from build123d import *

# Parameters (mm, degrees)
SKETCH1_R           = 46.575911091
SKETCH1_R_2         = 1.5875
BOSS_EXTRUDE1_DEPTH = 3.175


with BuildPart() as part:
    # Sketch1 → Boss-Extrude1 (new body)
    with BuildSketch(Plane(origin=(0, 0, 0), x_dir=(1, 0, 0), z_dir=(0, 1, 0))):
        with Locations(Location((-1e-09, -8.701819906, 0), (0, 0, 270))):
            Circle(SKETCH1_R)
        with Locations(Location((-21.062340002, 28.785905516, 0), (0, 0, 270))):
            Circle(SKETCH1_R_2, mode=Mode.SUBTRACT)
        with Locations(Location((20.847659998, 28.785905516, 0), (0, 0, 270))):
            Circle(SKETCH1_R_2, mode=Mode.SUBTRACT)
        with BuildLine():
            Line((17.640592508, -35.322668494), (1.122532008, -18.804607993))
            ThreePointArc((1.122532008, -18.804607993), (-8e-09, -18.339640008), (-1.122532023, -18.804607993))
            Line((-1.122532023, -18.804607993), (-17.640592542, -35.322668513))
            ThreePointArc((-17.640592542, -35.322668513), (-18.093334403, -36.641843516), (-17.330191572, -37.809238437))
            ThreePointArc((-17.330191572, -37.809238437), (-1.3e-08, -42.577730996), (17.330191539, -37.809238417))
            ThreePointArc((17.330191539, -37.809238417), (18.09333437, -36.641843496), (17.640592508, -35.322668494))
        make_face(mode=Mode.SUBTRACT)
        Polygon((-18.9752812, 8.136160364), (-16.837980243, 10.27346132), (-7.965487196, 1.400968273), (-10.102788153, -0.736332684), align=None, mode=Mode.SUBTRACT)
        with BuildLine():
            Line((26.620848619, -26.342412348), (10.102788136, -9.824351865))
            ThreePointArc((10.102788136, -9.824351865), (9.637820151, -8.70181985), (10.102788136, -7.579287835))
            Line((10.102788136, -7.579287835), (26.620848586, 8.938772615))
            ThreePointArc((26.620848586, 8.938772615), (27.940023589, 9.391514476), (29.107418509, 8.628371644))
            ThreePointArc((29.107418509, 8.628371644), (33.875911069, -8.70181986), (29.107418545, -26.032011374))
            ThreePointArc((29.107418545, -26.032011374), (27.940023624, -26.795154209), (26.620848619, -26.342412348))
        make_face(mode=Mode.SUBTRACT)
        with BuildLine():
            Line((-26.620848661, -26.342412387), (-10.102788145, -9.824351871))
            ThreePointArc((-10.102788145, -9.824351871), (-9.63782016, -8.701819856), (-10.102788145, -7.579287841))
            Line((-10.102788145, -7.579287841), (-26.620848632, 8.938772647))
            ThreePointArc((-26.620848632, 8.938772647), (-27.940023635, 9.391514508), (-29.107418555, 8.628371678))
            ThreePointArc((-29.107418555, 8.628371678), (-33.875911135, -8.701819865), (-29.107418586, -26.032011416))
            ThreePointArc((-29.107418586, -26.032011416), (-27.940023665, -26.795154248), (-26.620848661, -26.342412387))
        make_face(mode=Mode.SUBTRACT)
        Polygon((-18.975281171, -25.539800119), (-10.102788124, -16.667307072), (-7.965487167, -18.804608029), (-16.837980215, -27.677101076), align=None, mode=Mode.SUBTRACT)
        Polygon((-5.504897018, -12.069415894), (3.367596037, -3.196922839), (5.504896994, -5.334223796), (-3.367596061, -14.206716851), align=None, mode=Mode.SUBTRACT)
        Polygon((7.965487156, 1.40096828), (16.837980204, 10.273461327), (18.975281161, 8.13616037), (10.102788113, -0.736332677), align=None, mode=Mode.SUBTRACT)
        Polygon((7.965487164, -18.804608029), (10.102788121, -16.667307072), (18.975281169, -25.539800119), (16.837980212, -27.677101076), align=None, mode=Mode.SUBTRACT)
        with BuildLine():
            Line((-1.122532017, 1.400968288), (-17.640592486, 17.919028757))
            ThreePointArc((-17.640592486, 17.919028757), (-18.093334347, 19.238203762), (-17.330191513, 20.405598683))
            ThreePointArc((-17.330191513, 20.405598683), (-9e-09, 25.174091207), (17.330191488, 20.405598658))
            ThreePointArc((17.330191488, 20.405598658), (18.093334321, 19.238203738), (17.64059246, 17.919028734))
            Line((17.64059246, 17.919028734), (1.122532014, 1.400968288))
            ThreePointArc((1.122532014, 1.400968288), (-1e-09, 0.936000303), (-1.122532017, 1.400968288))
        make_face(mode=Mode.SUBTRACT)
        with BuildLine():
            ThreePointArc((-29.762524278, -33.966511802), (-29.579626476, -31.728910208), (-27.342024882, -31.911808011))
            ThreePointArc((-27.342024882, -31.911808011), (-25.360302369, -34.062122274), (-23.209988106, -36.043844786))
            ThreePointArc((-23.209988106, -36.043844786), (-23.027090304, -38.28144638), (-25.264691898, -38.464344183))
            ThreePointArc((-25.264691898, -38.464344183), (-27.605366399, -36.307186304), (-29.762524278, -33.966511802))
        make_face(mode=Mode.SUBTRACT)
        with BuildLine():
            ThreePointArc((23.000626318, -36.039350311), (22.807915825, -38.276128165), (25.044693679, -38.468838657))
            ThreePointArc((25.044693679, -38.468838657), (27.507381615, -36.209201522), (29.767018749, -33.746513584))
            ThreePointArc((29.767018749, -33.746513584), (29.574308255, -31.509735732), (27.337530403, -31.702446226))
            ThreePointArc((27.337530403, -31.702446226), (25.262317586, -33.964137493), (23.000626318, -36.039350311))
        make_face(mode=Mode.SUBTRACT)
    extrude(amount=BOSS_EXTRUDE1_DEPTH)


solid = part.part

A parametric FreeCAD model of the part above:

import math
import FreeCAD as App
import Part
import Sketcher
from FreeCAD import Vector
Q = App.Units.Quantity


def add_polygon(sketch, points):
    """Adds a closed chain of lines whose ends are joined by coincident constraints."""
    first, n = sketch.GeometryCount, len(points)
    for a, b in zip(points, points[1:] + points[:1]):
        sketch.addGeometry(Part.LineSegment(App.Vector(*a, 0), App.Vector(*b, 0)), False)
    for i in range(n):
        sketch.addConstraint(Sketcher.Constraint("Coincident", first + i, 2, first + (i + 1) % n, 1))

doc = App.newDocument("Part")
body = doc.addObject("PartDesign::Body", "Body")

# Sketch on XZ plane
sketch1 = body.newObject("Sketcher::SketchObject", "Sketch")
sketch1.AttachmentSupport = (doc.getObject("XZ_Plane"), [""])
sketch1.MapMode = "FlatFace"
sketch1.addGeometry(Part.Circle(Vector(0, 8.7, 0), Vector(0, 0, 1), 46.6), False)  # 0
sketch1.addGeometry(Part.Circle(Vector(-21.1, -28.8, 0), Vector(0, 0, 1), 1.6), False)  # 1
add_polygon(sketch1, [(-10.1, 0.7), (-19, -8.1), (-16.8, -10.3), (-8, -1.4)])  # lines 2-5
sketch1.addGeometry(Part.LineSegment(Vector(-10.1, 9.8, 0), Vector(-26.6, 26.3, 0)), False)  # 6
sketch1.addGeometry(Part.ArcOfCircle(Part.Circle(Vector(-27.7, 25.2, 0), Vector(0, 0, 1), 1.6), math.radians(45), math.radians(149)), False)  # 7
sketch1.addGeometry(Part.ArcOfCircle(Part.Circle(Vector(0, 8.7, 0), Vector(0, 0, 1), 33.9), math.radians(149), math.radians(211)), False)  # 8
sketch1.addGeometry(Part.ArcOfCircle(Part.Circle(Vector(-27.7, -7.8, 0), Vector(0, 0, 1), 1.6), math.radians(-149), math.radians(-45)), False)  # 9
sketch1.addGeometry(Part.LineSegment(Vector(-26.6, -8.9, 0), Vector(-10.1, 7.6, 0)), False)  # 10
sketch1.addGeometry(Part.ArcOfCircle(Part.Circle(Vector(-11.2, 8.7, 0), Vector(0, 0, 1), 1.6), math.radians(-45), math.radians(45)), False)  # 11
sketch1.addGeometry(Part.ArcOfCircle(Part.Circle(Vector(0, 8.7, 0), Vector(0, 0, 1), 39), math.radians(130.33), math.radians(139.67)), False)  # 12
sketch1.addGeometry(Part.ArcOfCircle(Part.Circle(Vector(-28.6, 32.9, 0), Vector(0, 0, 1), 1.6), math.radians(140), math.radians(320)), False)  # 13
sketch1.addGeometry(Part.ArcOfCircle(Part.Circle(Vector(0, 8.7, 0), Vector(0, 0, 1), 35.9), math.radians(130.33), math.radians(139.67)), False)  # 14
sketch1.addGeometry(Part.ArcOfCircle(Part.Circle(Vector(-24.2, 37.3, 0), Vector(0, 0, 1), 1.6), math.radians(-50), math.radians(130)), False)  # 15
add_polygon(sketch1, [(-16.8, 27.7), (-19, 25.5), (-10.1, 16.7), (-8, 18.8)])  # lines 16-19
sketch1.addGeometry(Part.ArcOfCircle(Part.Circle(Vector(0, -2.5, 0), Vector(0, 0, 1), 1.6), math.radians(45), math.radians(135)), False)  # 20
sketch1.addGeometry(Part.LineSegment(Vector(-1.1, -1.4, 0), Vector(-17.6, -17.9, 0)), False)  # 21
sketch1.addGeometry(Part.ArcOfCircle(Part.Circle(Vector(-16.5, -19, 0), Vector(0, 0, 1), 1.6), math.radians(135), math.radians(239)), False)  # 22
sketch1.addGeometry(Part.ArcOfCircle(Part.Circle(Vector(0, 8.7, 0), Vector(0, 0, 1), 33.9), math.radians(-121), math.radians(-59)), False)  # 23
sketch1.addGeometry(Part.ArcOfCircle(Part.Circle(Vector(16.5, -19, 0), Vector(0, 0, 1), 1.6), math.radians(-59), math.radians(45)), False)  # 24
sketch1.addGeometry(Part.LineSegment(Vector(17.6, -17.9, 0), Vector(1.1, -1.4, 0)), False)  # 25
add_polygon(sketch1, [(10.1, 0.7), (8, -1.4), (16.8, -10.3), (19, -8.1)])  # lines 26-29
sketch1.addGeometry(Part.Circle(Vector(20.8, -28.8, 0), Vector(0, 0, 1), 1.6), False)  # 30
add_polygon(sketch1, [(-3.4, 14.2), (-5.5, 12.1), (3.4, 3.2), (5.5, 5.3)])  # lines 31-34
add_polygon(sketch1, [(16.8, 27.7), (8, 18.8), (10.1, 16.7), (19, 25.5)])  # lines 35-38
sketch1.addGeometry(Part.LineSegment(Vector(1.1, 18.8, 0), Vector(17.6, 35.3, 0)), False)  # 39
sketch1.addGeometry(Part.ArcOfCircle(Part.Circle(Vector(16.5, 36.4, 0), Vector(0, 0, 1), 1.6), math.radians(-45), math.radians(59)), False)  # 40
sketch1.addGeometry(Part.ArcOfCircle(Part.Circle(Vector(0, 8.7, 0), Vector(0, 0, 1), 33.9), math.radians(59), math.radians(121)), False)  # 41
sketch1.addGeometry(Part.ArcOfCircle(Part.Circle(Vector(-16.5, 36.4, 0), Vector(0, 0, 1), 1.6), math.radians(121), math.radians(225)), False)  # 42
sketch1.addGeometry(Part.LineSegment(Vector(-17.6, 35.3, 0), Vector(-1.1, 18.8, 0)), False)  # 43
sketch1.addGeometry(Part.ArcOfCircle(Part.Circle(Vector(0, 19.9, 0), Vector(0, 0, 1), 1.6), math.radians(-135), math.radians(-45)), False)  # 44
sketch1.addGeometry(Part.ArcOfCircle(Part.Circle(Vector(27.7, 25.2, 0), Vector(0, 0, 1), 1.6), math.radians(31), math.radians(135)), False)  # 45
sketch1.addGeometry(Part.LineSegment(Vector(26.6, 26.3, 0), Vector(10.1, 9.8, 0)), False)  # 46
sketch1.addGeometry(Part.ArcOfCircle(Part.Circle(Vector(11.2, 8.7, 0), Vector(0, 0, 1), 1.6), math.radians(135), math.radians(225)), False)  # 47
sketch1.addGeometry(Part.LineSegment(Vector(10.1, 7.6, 0), Vector(26.6, -8.9, 0)), False)  # 48
sketch1.addGeometry(Part.ArcOfCircle(Part.Circle(Vector(27.7, -7.8, 0), Vector(0, 0, 1), 1.6), math.radians(-135), math.radians(-31)), False)  # 49
sketch1.addGeometry(Part.ArcOfCircle(Part.Circle(Vector(0, 8.7, 0), Vector(0, 0, 1), 33.9), math.radians(-31), math.radians(31)), False)  # 50
sketch1.addGeometry(Part.ArcOfCircle(Part.Circle(Vector(24, 37.3, 0), Vector(0, 0, 1), 1.6), math.radians(50), math.radians(230)), False)  # 51
sketch1.addGeometry(Part.ArcOfCircle(Part.Circle(Vector(0, 8.7, 0), Vector(0, 0, 1), 35.7), math.radians(40.08), math.radians(49.92)), False)  # 52
sketch1.addGeometry(Part.ArcOfCircle(Part.Circle(Vector(28.6, 32.7, 0), Vector(0, 0, 1), 1.6), math.radians(-140), math.radians(40)), False)  # 53
sketch1.addGeometry(Part.ArcOfCircle(Part.Circle(Vector(0, 8.7, 0), Vector(0, 0, 1), 38.9), math.radians(40.08), math.radians(49.92)), False)  # 54
sketch1.addConstraint([
    Sketcher.Constraint("Tangent", 6, 2, 7, 1),
    Sketcher.Constraint("Tangent", 7, 2, 8, 1),
    Sketcher.Constraint("Tangent", 8, 2, 9, 1),
    Sketcher.Constraint("Tangent", 9, 2, 10, 1),
    Sketcher.Constraint("Tangent", 10, 2, 11, 1),
    Sketcher.Constraint("Tangent", 11, 2, 6, 1),
    Sketcher.Constraint("Tangent", 12, 2, 13, 1),
    Sketcher.Constraint("Tangent", 13, 2, 14, 2),
    Sketcher.Constraint("Tangent", 14, 1, 15, 1),
    Sketcher.Constraint("Tangent", 15, 2, 12, 1),
    Sketcher.Constraint("Tangent", 20, 2, 21, 1),
    Sketcher.Constraint("Tangent", 21, 2, 22, 1),
    Sketcher.Constraint("Tangent", 22, 2, 23, 1),
    Sketcher.Constraint("Tangent", 23, 2, 24, 1),
    Sketcher.Constraint("Tangent", 24, 2, 25, 1),
    Sketcher.Constraint("Tangent", 25, 2, 20, 1),
    Sketcher.Constraint("Tangent", 39, 2, 40, 1),
    Sketcher.Constraint("Tangent", 40, 2, 41, 1),
    Sketcher.Constraint("Tangent", 41, 2, 42, 1),
    Sketcher.Constraint("Tangent", 42, 2, 43, 1),
    Sketcher.Constraint("Tangent", 43, 2, 44, 1),
    Sketcher.Constraint("Tangent", 44, 2, 39, 1),
    Sketcher.Constraint("Tangent", 45, 2, 46, 1),
    Sketcher.Constraint("Tangent", 46, 2, 47, 1),
    Sketcher.Constraint("Tangent", 47, 2, 48, 1),
    Sketcher.Constraint("Tangent", 48, 2, 49, 1),
    Sketcher.Constraint("Tangent", 49, 2, 50, 1),
    Sketcher.Constraint("Tangent", 50, 2, 45, 1),
    Sketcher.Constraint("Tangent", 51, 2, 52, 2),
    Sketcher.Constraint("Tangent", 52, 1, 53, 1),
    Sketcher.Constraint("Tangent", 53, 2, 54, 1),
    Sketcher.Constraint("Tangent", 54, 2, 51, 1),
    Sketcher.Constraint("Coincident", 8, 3, 0, 3),
    Sketcher.Constraint("Coincident", 12, 3, 0, 3),
    Sketcher.Constraint("Coincident", 14, 3, 0, 3),
    Sketcher.Constraint("Coincident", 23, 3, 0, 3),
    Sketcher.Constraint("Coincident", 41, 3, 0, 3),
    Sketcher.Constraint("Coincident", 50, 3, 0, 3),
    Sketcher.Constraint("Coincident", 52, 3, 0, 3),
    Sketcher.Constraint("Coincident", 54, 3, 0, 3),
    Sketcher.Constraint("Equal", 1, 7),
    Sketcher.Constraint("Equal", 7, 9),
    Sketcher.Constraint("Equal", 9, 11),
    Sketcher.Constraint("Equal", 11, 13),
    Sketcher.Constraint("Equal", 15, 20),
    Sketcher.Constraint("Equal", 20, 22),
    Sketcher.Constraint("Equal", 8, 23),
    Sketcher.Constraint("Equal", 22, 24),
    Sketcher.Constraint("Equal", 24, 30),
    Sketcher.Constraint("Equal", 30, 40),
    Sketcher.Constraint("Equal", 23, 41),
    Sketcher.Constraint("Equal", 40, 42),
    Sketcher.Constraint("Equal", 42, 44),
    Sketcher.Constraint("Equal", 44, 45),
    Sketcher.Constraint("Equal", 45, 47),
    Sketcher.Constraint("Equal", 47, 49),
    Sketcher.Constraint("Equal", 41, 50),
    Sketcher.Constraint("Equal", 49, 51),
    Sketcher.Constraint("Symmetric", 22, 3, 24, 3, -2),
    Sketcher.Constraint("Symmetric", 11, 3, 47, 3, -2),
    Sketcher.Constraint("Symmetric", 4, 2, 26, 2, -2),
    Sketcher.Constraint("Symmetric", 3, 2, 27, 2, -2),
    Sketcher.Constraint("Symmetric", 2, 2, 28, 2, -2),
    Sketcher.Constraint("Symmetric", 5, 2, 29, 2, -2),
    Sketcher.Constraint("Symmetric", 18, 2, 35, 2, -2),
    Sketcher.Constraint("Symmetric", 17, 2, 36, 2, -2),
    Sketcher.Constraint("Symmetric", 16, 2, 37, 2, -2),
    Sketcher.Constraint("Symmetric", 19, 2, 38, 2, -2),
    Sketcher.Constraint("Symmetric", 39, 2, 42, 2, -2),
    Sketcher.Constraint("PointOnObject", 20, 3, -2),
    Sketcher.Constraint("Perpendicular", 2, 3),
    Sketcher.Constraint("Perpendicular", 3, 4),
    Sketcher.Constraint("Perpendicular", 4, 5),
    Sketcher.Constraint("Parallel", 5, 6),
    Sketcher.Constraint("Perpendicular", 6, 10),
    Sketcher.Constraint("Parallel", 10, 16),
    Sketcher.Constraint("Perpendicular", 16, 17),
    Sketcher.Constraint("Perpendicular", 17, 18),
    Sketcher.Constraint("Perpendicular", 18, 19),
    Sketcher.Constraint("Perpendicular", 19, 21),
    Sketcher.Constraint("Perpendicular", 21, 25),
    Sketcher.Constraint("Perpendicular", 29, 31),
    Sketcher.Constraint("Perpendicular", 31, 32),
    Sketcher.Constraint("Perpendicular", 32, 33),
    Sketcher.Constraint("Perpendicular", 33, 34),
    Sketcher.Constraint("Perpendicular", 38, 39),
    Sketcher.Constraint("Perpendicular", 43, 46),
    Sketcher.Constraint("Perpendicular", 46, 48),
    Sketcher.Constraint("Horizontal", 8, 3, 11, 3),
    Sketcher.Constraint("Horizontal", 1, 3, 30, 3),
    Sketcher.Constraint("Horizontal", 15, 3, 51, 3),
    Sketcher.Constraint("Horizontal", 4, 2, 20, 2),
    Sketcher.Constraint("Horizontal", 35, 2, 43, 2),
    Sketcher.Constraint("Vertical", 24, 3, 40, 3),
    Sketcher.Constraint("Vertical", 5, 2, 10, 2),
    Sketcher.Constraint("Vertical", 2, 2, 16, 2),
    Sketcher.Constraint("Vertical", 11, 2, 17, 2),
    Sketcher.Constraint("Vertical", 4, 2, 18, 2),
    Sketcher.Constraint("Equal", 10, 21),
    Sketcher.Constraint("Equal", 28, 31),
    Sketcher.Constraint("Equal", 29, 32),
    Sketcher.Constraint("Diameter", 1, Q("0.125 in")),
    Sketcher.Constraint("Distance", 2, Q("0.494 in")),
    Sketcher.Constraint("Distance", 3, Q("0.119 in")),
    Sketcher.Constraint("Radius", 8, 33.875911),
    Sketcher.Constraint("Diameter", 0, 93.151822),
    Sketcher.Constraint("Radius", 12, 39.039884),
    Sketcher.Constraint("Radius", 52, 35.726312),
    Sketcher.Constraint("DistanceY", 20, 3, -1, 1, 2.5235),
    Sketcher.Constraint("DistanceY", -1, 1, 40, 3, 36.445201),
    Sketcher.Constraint("DistanceX", 1, 3, -1, 1, 21.06234),
    Sketcher.Constraint("DistanceY", -1, 1, 13, 3, 32.93916),
    Sketcher.Constraint("DistanceX", 15, 3, -1, 1, 24.23734),
    Sketcher.Constraint("DistanceX", -1, 1, 30, 3, 20.84766),
    Sketcher.Constraint("DistanceY", -1, 1, 53, 3, 32.72448),
    Sketcher.Constraint("DistanceY", 1, 3, -1, 1, 28.785906),
    Sketcher.Constraint("DistanceX", 31, 2, -1, 1, 5.504897),
    Sketcher.Constraint("DistanceY", -1, 1, 31, 2, 12.069416),
])
pad1 = body.newObject("PartDesign::Pad", "Pad")
pad1.Profile = sketch1
pad1.Length = Q("0.125 in")
pad1.Reversed = True

doc.recompute()
